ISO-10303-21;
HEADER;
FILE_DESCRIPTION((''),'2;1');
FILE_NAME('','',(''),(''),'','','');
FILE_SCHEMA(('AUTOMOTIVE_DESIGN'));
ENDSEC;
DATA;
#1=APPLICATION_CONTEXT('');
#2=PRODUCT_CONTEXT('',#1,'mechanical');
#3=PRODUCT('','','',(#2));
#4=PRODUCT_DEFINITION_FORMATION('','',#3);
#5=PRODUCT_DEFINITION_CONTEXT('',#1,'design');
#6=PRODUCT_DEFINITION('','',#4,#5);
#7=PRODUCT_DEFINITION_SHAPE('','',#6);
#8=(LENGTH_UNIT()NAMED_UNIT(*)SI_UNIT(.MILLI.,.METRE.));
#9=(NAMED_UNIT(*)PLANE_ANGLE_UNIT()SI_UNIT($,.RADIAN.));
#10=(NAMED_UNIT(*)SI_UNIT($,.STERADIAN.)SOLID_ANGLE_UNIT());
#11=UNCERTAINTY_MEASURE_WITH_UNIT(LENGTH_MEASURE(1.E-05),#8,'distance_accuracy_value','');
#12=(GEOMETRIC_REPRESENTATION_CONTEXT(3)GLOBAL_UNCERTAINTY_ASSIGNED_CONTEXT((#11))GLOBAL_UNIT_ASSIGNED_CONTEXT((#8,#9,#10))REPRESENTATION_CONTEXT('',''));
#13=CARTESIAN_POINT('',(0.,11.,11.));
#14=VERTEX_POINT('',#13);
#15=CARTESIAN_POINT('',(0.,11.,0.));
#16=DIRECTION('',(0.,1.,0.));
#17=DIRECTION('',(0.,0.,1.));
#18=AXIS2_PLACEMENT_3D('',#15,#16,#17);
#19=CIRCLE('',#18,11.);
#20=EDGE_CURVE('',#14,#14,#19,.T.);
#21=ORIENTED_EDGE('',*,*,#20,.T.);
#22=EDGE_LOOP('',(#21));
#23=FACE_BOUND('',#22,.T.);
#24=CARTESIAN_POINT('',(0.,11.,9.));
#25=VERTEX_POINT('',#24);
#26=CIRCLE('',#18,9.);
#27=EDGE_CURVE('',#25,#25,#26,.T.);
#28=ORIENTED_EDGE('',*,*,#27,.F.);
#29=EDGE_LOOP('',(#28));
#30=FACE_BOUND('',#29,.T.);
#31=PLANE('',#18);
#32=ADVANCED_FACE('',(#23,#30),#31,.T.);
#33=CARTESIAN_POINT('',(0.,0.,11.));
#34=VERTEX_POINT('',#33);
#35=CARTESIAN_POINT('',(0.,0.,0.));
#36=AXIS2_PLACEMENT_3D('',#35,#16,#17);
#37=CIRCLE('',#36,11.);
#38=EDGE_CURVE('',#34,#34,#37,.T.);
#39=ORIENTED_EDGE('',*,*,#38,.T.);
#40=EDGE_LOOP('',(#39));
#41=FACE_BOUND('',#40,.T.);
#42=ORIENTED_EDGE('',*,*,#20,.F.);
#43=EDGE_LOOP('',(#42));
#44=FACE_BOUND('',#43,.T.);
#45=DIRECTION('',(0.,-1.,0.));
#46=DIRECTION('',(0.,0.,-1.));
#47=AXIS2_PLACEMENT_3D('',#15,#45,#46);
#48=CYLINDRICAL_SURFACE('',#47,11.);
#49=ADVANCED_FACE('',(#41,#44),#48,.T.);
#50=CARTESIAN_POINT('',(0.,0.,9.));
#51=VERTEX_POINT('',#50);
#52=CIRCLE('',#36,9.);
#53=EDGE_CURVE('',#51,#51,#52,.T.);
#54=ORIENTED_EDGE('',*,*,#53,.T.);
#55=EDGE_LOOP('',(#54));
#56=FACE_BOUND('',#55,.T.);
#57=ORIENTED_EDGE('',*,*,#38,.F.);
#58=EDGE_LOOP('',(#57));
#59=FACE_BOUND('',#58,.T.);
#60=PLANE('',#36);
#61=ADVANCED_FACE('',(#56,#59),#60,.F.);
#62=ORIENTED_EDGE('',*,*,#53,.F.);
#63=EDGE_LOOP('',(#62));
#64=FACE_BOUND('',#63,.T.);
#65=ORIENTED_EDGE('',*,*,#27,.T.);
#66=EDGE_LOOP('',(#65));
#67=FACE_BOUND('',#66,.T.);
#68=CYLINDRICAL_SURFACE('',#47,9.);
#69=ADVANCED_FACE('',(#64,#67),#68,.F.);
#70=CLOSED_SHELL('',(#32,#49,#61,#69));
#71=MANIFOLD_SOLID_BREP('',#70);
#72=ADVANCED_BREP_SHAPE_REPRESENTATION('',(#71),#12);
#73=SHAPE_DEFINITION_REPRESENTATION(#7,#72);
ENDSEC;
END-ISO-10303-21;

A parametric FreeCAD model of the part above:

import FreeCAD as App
import Part
import Sketcher

V = App.Vector

doc = App.newDocument("Part")
params = doc.addObject("Spreadsheet::Sheet", "Params")
for row, (alias, value) in enumerate([
    ("sketch1_diameter", "22 mm"),
    ("sketch1_diameter2", "18 mm"),
    ("pad1_length", "11 mm"),
], start=1):
    params.set(f"A{row}", alias)
    params.set(f"B{row}", "=" + value)
    params.setAlias(f"B{row}", alias)

body = doc.addObject("PartDesign::Body", "Body")

sketch1 = body.newObject("Sketcher::SketchObject", "Sketch")
sketch1.AttachmentSupport = (doc.getObject("XZ_Plane"), [""])
sketch1.MapMode = "FlatFace"
sketch1.addGeometry([
    Part.Circle(V(0, 0, 0), V(0, 0, 1), 11),
    Part.Circle(V(0, 0, 0), V(0, 0, 1), 9),
], False)
sketch1.addConstraint([
    Sketcher.Constraint("Coincident", 0, 3, -1, 1),
    Sketcher.Constraint("Coincident", 1, 3, -1, 1),
    Sketcher.Constraint("Diameter", 0, 22.0),
    Sketcher.Constraint("Diameter", 1, 18.0),
])
sketch1.setExpression("Constraints[2]", "Params.sketch1_diameter")
sketch1.setExpression("Constraints[3]", "Params.sketch1_diameter2")
pad1 = body.newObject("PartDesign::Pad", "Pad")
pad1.Profile = sketch1
pad1.setExpression("Length", "Params.pad1_length")
pad1.Reversed = True

doc.recompute()
